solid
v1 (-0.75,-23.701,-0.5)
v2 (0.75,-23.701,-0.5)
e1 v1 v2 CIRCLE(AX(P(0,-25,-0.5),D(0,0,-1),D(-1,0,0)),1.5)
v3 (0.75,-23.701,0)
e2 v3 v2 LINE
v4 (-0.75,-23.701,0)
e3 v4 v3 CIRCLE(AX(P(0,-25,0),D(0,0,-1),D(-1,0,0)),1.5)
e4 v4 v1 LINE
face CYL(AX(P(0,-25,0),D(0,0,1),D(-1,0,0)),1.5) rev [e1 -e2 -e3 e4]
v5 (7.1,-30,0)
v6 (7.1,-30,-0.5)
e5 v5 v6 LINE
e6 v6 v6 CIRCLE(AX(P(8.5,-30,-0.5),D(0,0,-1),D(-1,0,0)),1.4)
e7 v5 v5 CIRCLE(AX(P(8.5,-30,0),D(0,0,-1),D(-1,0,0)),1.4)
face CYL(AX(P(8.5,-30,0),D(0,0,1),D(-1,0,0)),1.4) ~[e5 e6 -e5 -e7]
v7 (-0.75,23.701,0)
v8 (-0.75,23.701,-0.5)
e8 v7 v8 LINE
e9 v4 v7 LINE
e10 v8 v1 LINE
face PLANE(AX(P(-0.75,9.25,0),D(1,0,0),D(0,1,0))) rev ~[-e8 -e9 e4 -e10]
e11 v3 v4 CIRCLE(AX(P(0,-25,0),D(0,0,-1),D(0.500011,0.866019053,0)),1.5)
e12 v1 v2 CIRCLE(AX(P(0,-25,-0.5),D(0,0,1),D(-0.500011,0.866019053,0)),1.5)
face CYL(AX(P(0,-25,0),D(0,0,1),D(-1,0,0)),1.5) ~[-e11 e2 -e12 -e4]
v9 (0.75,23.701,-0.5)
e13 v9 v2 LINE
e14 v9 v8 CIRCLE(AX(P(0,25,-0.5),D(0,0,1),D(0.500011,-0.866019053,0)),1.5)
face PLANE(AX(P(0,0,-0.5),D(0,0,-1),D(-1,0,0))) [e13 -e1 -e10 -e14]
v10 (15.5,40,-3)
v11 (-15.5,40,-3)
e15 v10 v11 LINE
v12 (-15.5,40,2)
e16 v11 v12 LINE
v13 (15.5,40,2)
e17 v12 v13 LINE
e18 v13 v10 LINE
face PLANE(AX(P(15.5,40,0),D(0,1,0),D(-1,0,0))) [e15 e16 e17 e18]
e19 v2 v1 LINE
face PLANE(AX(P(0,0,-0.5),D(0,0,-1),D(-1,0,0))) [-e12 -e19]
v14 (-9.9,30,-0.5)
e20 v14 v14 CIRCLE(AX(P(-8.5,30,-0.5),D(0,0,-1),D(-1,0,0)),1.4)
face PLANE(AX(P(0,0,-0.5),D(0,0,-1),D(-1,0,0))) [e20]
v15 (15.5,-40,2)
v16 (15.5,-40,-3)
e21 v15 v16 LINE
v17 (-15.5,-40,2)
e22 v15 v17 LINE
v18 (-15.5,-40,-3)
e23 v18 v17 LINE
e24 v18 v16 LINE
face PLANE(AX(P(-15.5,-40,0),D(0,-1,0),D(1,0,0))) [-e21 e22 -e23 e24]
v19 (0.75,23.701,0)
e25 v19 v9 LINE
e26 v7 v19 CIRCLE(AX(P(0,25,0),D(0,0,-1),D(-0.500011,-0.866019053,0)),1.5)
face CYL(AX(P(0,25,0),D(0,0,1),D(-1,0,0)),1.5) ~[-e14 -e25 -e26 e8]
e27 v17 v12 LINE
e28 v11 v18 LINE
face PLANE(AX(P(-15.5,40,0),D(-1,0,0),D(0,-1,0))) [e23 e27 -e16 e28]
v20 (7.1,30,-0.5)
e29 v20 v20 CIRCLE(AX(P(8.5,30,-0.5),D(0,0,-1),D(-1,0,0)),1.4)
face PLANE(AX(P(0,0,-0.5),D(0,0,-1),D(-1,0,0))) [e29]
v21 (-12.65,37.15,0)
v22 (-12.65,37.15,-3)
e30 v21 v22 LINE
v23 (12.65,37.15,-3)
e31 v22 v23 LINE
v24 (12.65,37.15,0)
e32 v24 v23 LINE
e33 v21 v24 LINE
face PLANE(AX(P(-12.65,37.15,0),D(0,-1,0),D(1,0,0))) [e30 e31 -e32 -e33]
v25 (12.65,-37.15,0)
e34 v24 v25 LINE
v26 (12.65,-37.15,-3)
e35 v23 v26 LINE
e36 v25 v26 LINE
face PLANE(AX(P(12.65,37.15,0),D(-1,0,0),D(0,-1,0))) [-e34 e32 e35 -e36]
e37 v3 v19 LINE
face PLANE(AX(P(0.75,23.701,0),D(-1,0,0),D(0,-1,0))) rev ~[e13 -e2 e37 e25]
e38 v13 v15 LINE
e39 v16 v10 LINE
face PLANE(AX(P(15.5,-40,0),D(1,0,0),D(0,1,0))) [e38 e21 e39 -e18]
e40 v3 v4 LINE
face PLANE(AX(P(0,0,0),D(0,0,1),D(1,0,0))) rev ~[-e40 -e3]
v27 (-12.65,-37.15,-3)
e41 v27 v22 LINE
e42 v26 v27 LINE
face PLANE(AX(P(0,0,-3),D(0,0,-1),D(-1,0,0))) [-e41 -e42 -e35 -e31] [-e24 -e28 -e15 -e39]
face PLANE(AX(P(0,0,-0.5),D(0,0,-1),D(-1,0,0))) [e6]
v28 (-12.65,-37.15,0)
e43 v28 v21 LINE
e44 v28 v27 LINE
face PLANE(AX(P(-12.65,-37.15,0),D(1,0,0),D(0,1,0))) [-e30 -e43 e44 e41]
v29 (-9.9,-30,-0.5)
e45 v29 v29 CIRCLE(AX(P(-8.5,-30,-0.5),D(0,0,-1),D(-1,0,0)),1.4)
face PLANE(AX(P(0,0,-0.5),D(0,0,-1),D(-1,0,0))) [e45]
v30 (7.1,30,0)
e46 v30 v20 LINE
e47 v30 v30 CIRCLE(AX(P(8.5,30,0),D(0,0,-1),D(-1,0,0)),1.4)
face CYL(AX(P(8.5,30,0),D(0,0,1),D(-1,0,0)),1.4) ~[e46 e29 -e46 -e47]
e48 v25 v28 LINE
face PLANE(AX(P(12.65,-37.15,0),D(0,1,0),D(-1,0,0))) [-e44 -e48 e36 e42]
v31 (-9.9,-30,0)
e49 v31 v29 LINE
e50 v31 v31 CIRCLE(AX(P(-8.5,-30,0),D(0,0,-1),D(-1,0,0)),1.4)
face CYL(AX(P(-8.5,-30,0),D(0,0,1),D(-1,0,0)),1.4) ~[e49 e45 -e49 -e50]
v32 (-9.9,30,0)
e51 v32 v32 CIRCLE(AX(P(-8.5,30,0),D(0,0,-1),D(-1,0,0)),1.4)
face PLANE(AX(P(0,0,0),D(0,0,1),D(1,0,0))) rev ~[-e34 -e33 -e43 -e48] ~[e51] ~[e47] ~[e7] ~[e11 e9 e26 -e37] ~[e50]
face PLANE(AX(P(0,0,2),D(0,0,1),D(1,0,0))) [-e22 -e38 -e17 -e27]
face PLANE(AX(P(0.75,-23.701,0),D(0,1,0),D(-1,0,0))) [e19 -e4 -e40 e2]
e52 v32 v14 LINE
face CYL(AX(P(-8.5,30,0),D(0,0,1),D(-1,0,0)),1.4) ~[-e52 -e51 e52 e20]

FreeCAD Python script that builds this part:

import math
import FreeCAD as App
import Part
import Sketcher
from FreeCAD import Vector


def add_polygon(sketch, points):
    """Adds a closed chain of lines whose ends are joined by coincident constraints."""
    first, n = sketch.GeometryCount, len(points)
    for a, b in zip(points, points[1:] + points[:1]):
        sketch.addGeometry(Part.LineSegment(App.Vector(*a, 0), App.Vector(*b, 0)), False)
    for i in range(n):
        sketch.addConstraint(Sketcher.Constraint("Coincident", first + i, 2, first + (i + 1) % n, 1))

doc = App.newDocument("Part")
body = doc.addObject("PartDesign::Body", "Body")

# Sketch on XY plane
sketch1 = body.newObject("Sketcher::SketchObject", "Sketch")
sketch1.AttachmentSupport = (doc.getObject("XY_Plane"), [""])
sketch1.MapMode = "FlatFace"
add_polygon(sketch1, [(-16, -40), (16, -40), (16, 40), (-16, 40)])  # lines 0-3
sketch1.addConstraint([
    Sketcher.Constraint("Horizontal", 0),
    Sketcher.Constraint("Vertical", 1),
    Sketcher.Constraint("Horizontal", 2),
    Sketcher.Constraint("Vertical", 3),
    Sketcher.Constraint("Symmetric", 0, 2, 2, 2, -1, 1),
    Sketcher.Constraint("DistanceX", 0, 1, 0, 2, 31.0),
    Sketcher.Constraint("DistanceY", 1, 1, 1, 2, 80.0),
])
pad1 = body.newObject("PartDesign::Pad", "Pad")
pad1.Profile = sketch1
pad1.Length = 2

# Sketch on XY plane
sketch2 = body.newObject("Sketcher::SketchObject", "Sketch001")
sketch2.AttachmentSupport = (doc.getObject("XY_Plane"), [""])
sketch2.MapMode = "FlatFace"
sketch2.addGeometry([
    Part.Circle(Vector(-8.5, -30, 0), Vector(0, 0, 1), 1.4),  # 0
    Part.Circle(Vector(8.5, -30, 0), Vector(0, 0, 1), 1.4),  # 1
    Part.Circle(Vector(8.5, 30, 0), Vector(0, 0, 1), 1.4),  # 2
    Part.Circle(Vector(-8.5, 30, 0), Vector(0, 0, 1), 1.4),  # 3
    Part.ArcOfCircle(Part.Circle(Vector(0, 25, 0), Vector(0, 0, 1), 1.5), math.radians(-60), math.radians(240)),  # 4
    Part.LineSegment(Vector(0.8, 23.7, 0), Vector(0.8, -23.7, 0)),  # 5
    Part.ArcOfCircle(Part.Circle(Vector(0, -25, 0), Vector(0, 0, 1), 1.5), math.radians(60), math.radians(120)),  # 6
    Part.LineSegment(Vector(-0.8, -23.7, 0), Vector(-0.8, 23.7, 0)),  # 7
    Part.LineSegment(Vector(-0.8, -23.7, 0), Vector(0.8, -23.7, 0)),  # 8
    Part.ArcOfCircle(Part.Circle(Vector(0, -25, 0), Vector(0, 0, 1), 1.5), math.radians(120), math.radians(420)),  # 9
], False)
sketch2.addConstraint([
    Sketcher.Constraint("Coincident", 4, 1, 5, 1),
    Sketcher.Constraint("Coincident", 5, 2, 6, 1),
    Sketcher.Constraint("Coincident", 6, 2, 7, 1),
    Sketcher.Constraint("Coincident", 7, 2, 4, 2),
    Sketcher.Constraint("Coincident", 8, 1, 9, 1),
    Sketcher.Constraint("Coincident", 9, 2, 8, 2),
    Sketcher.Constraint("Vertical", 5),
    Sketcher.Constraint("Vertical", 7),
    Sketcher.Constraint("Horizontal", 8),
    Sketcher.Constraint("Coincident", 9, 3, 6, 3),
    Sketcher.Constraint("Coincident", 8, 1, 6, 2),
    Sketcher.Constraint("Equal", 0, 1),
    Sketcher.Constraint("Equal", 1, 2),
    Sketcher.Constraint("Equal", 2, 3),
    Sketcher.Constraint("Equal", 4, 6),
    Sketcher.Constraint("Symmetric", 0, 3, 2, 3, -1, 1),
    Sketcher.Constraint("Symmetric", 1, 3, 3, 3, -1, 1),
    Sketcher.Constraint("Symmetric", 4, 3, 6, 3, -1, 1),
    Sketcher.Constraint("Symmetric", 0, 3, 1, 3, -2),
    Sketcher.Constraint("Symmetric", 5, 2, 6, 2, -2),
    Sketcher.Constraint("Diameter", 0, 2.8),
    Sketcher.Constraint("Radius", 4, 1.5),
    Sketcher.Constraint("DistanceX", 8, 1, 8, 2, 1.5),
    Sketcher.Constraint("DistanceY", 0, 3, -1, 1, 30.0),
    Sketcher.Constraint("DistanceY", -1, 1, 4, 3, 25.0),
    Sketcher.Constraint("DistanceX", 0, 3, 1, 3, 17.0),
])
pad2 = body.newObject("PartDesign::Pad", "Pad001")
pad2.Profile = sketch2
pad2.Length = 0.5
pad2.Reversed = True

# Sketch on XY plane
sketch3 = body.newObject("Sketcher::SketchObject", "Sketch002")
sketch3.AttachmentSupport = (doc.getObject("XY_Plane"), [""])
sketch3.MapMode = "FlatFace"
add_polygon(sketch3, [(-16, 40), (16, 40), (16, -40), (-16, -40)])  # lines 0-3
add_polygon(sketch3, [(13, 37), (-13, 37), (-13, -37), (13, -37)])  # lines 4-7
sketch3.addConstraint([
    Sketcher.Constraint("Horizontal", 0),
    Sketcher.Constraint("Vertical", 1),
    Sketcher.Constraint("Horizontal", 2),
    Sketcher.Constraint("Vertical", 3),
    Sketcher.Constraint("Horizontal", 4),
    Sketcher.Constraint("Vertical", 5),
    Sketcher.Constraint("Horizontal", 6),
    Sketcher.Constraint("Vertical", 7),
    Sketcher.Constraint("Symmetric", 0, 2, 2, 2, -1, 1),
    Sketcher.Constraint("Symmetric", 4, 2, 6, 2, -1, 1),
    Sketcher.Constraint("DistanceX", 0, 1, 0, 2, 31.0),
    Sketcher.Constraint("DistanceY", 1, 2, 1, 1, 80.0),
    Sketcher.Constraint("DistanceX", 3, 2, 4, 2, 2.85),
    Sketcher.Constraint("DistanceY", 4, 2, 3, 2, 2.85),
])
pad3 = body.newObject("PartDesign::Pad", "Pad002")
pad3.Profile = sketch3
pad3.Length = 3
pad3.Reversed = True

doc.recompute()
